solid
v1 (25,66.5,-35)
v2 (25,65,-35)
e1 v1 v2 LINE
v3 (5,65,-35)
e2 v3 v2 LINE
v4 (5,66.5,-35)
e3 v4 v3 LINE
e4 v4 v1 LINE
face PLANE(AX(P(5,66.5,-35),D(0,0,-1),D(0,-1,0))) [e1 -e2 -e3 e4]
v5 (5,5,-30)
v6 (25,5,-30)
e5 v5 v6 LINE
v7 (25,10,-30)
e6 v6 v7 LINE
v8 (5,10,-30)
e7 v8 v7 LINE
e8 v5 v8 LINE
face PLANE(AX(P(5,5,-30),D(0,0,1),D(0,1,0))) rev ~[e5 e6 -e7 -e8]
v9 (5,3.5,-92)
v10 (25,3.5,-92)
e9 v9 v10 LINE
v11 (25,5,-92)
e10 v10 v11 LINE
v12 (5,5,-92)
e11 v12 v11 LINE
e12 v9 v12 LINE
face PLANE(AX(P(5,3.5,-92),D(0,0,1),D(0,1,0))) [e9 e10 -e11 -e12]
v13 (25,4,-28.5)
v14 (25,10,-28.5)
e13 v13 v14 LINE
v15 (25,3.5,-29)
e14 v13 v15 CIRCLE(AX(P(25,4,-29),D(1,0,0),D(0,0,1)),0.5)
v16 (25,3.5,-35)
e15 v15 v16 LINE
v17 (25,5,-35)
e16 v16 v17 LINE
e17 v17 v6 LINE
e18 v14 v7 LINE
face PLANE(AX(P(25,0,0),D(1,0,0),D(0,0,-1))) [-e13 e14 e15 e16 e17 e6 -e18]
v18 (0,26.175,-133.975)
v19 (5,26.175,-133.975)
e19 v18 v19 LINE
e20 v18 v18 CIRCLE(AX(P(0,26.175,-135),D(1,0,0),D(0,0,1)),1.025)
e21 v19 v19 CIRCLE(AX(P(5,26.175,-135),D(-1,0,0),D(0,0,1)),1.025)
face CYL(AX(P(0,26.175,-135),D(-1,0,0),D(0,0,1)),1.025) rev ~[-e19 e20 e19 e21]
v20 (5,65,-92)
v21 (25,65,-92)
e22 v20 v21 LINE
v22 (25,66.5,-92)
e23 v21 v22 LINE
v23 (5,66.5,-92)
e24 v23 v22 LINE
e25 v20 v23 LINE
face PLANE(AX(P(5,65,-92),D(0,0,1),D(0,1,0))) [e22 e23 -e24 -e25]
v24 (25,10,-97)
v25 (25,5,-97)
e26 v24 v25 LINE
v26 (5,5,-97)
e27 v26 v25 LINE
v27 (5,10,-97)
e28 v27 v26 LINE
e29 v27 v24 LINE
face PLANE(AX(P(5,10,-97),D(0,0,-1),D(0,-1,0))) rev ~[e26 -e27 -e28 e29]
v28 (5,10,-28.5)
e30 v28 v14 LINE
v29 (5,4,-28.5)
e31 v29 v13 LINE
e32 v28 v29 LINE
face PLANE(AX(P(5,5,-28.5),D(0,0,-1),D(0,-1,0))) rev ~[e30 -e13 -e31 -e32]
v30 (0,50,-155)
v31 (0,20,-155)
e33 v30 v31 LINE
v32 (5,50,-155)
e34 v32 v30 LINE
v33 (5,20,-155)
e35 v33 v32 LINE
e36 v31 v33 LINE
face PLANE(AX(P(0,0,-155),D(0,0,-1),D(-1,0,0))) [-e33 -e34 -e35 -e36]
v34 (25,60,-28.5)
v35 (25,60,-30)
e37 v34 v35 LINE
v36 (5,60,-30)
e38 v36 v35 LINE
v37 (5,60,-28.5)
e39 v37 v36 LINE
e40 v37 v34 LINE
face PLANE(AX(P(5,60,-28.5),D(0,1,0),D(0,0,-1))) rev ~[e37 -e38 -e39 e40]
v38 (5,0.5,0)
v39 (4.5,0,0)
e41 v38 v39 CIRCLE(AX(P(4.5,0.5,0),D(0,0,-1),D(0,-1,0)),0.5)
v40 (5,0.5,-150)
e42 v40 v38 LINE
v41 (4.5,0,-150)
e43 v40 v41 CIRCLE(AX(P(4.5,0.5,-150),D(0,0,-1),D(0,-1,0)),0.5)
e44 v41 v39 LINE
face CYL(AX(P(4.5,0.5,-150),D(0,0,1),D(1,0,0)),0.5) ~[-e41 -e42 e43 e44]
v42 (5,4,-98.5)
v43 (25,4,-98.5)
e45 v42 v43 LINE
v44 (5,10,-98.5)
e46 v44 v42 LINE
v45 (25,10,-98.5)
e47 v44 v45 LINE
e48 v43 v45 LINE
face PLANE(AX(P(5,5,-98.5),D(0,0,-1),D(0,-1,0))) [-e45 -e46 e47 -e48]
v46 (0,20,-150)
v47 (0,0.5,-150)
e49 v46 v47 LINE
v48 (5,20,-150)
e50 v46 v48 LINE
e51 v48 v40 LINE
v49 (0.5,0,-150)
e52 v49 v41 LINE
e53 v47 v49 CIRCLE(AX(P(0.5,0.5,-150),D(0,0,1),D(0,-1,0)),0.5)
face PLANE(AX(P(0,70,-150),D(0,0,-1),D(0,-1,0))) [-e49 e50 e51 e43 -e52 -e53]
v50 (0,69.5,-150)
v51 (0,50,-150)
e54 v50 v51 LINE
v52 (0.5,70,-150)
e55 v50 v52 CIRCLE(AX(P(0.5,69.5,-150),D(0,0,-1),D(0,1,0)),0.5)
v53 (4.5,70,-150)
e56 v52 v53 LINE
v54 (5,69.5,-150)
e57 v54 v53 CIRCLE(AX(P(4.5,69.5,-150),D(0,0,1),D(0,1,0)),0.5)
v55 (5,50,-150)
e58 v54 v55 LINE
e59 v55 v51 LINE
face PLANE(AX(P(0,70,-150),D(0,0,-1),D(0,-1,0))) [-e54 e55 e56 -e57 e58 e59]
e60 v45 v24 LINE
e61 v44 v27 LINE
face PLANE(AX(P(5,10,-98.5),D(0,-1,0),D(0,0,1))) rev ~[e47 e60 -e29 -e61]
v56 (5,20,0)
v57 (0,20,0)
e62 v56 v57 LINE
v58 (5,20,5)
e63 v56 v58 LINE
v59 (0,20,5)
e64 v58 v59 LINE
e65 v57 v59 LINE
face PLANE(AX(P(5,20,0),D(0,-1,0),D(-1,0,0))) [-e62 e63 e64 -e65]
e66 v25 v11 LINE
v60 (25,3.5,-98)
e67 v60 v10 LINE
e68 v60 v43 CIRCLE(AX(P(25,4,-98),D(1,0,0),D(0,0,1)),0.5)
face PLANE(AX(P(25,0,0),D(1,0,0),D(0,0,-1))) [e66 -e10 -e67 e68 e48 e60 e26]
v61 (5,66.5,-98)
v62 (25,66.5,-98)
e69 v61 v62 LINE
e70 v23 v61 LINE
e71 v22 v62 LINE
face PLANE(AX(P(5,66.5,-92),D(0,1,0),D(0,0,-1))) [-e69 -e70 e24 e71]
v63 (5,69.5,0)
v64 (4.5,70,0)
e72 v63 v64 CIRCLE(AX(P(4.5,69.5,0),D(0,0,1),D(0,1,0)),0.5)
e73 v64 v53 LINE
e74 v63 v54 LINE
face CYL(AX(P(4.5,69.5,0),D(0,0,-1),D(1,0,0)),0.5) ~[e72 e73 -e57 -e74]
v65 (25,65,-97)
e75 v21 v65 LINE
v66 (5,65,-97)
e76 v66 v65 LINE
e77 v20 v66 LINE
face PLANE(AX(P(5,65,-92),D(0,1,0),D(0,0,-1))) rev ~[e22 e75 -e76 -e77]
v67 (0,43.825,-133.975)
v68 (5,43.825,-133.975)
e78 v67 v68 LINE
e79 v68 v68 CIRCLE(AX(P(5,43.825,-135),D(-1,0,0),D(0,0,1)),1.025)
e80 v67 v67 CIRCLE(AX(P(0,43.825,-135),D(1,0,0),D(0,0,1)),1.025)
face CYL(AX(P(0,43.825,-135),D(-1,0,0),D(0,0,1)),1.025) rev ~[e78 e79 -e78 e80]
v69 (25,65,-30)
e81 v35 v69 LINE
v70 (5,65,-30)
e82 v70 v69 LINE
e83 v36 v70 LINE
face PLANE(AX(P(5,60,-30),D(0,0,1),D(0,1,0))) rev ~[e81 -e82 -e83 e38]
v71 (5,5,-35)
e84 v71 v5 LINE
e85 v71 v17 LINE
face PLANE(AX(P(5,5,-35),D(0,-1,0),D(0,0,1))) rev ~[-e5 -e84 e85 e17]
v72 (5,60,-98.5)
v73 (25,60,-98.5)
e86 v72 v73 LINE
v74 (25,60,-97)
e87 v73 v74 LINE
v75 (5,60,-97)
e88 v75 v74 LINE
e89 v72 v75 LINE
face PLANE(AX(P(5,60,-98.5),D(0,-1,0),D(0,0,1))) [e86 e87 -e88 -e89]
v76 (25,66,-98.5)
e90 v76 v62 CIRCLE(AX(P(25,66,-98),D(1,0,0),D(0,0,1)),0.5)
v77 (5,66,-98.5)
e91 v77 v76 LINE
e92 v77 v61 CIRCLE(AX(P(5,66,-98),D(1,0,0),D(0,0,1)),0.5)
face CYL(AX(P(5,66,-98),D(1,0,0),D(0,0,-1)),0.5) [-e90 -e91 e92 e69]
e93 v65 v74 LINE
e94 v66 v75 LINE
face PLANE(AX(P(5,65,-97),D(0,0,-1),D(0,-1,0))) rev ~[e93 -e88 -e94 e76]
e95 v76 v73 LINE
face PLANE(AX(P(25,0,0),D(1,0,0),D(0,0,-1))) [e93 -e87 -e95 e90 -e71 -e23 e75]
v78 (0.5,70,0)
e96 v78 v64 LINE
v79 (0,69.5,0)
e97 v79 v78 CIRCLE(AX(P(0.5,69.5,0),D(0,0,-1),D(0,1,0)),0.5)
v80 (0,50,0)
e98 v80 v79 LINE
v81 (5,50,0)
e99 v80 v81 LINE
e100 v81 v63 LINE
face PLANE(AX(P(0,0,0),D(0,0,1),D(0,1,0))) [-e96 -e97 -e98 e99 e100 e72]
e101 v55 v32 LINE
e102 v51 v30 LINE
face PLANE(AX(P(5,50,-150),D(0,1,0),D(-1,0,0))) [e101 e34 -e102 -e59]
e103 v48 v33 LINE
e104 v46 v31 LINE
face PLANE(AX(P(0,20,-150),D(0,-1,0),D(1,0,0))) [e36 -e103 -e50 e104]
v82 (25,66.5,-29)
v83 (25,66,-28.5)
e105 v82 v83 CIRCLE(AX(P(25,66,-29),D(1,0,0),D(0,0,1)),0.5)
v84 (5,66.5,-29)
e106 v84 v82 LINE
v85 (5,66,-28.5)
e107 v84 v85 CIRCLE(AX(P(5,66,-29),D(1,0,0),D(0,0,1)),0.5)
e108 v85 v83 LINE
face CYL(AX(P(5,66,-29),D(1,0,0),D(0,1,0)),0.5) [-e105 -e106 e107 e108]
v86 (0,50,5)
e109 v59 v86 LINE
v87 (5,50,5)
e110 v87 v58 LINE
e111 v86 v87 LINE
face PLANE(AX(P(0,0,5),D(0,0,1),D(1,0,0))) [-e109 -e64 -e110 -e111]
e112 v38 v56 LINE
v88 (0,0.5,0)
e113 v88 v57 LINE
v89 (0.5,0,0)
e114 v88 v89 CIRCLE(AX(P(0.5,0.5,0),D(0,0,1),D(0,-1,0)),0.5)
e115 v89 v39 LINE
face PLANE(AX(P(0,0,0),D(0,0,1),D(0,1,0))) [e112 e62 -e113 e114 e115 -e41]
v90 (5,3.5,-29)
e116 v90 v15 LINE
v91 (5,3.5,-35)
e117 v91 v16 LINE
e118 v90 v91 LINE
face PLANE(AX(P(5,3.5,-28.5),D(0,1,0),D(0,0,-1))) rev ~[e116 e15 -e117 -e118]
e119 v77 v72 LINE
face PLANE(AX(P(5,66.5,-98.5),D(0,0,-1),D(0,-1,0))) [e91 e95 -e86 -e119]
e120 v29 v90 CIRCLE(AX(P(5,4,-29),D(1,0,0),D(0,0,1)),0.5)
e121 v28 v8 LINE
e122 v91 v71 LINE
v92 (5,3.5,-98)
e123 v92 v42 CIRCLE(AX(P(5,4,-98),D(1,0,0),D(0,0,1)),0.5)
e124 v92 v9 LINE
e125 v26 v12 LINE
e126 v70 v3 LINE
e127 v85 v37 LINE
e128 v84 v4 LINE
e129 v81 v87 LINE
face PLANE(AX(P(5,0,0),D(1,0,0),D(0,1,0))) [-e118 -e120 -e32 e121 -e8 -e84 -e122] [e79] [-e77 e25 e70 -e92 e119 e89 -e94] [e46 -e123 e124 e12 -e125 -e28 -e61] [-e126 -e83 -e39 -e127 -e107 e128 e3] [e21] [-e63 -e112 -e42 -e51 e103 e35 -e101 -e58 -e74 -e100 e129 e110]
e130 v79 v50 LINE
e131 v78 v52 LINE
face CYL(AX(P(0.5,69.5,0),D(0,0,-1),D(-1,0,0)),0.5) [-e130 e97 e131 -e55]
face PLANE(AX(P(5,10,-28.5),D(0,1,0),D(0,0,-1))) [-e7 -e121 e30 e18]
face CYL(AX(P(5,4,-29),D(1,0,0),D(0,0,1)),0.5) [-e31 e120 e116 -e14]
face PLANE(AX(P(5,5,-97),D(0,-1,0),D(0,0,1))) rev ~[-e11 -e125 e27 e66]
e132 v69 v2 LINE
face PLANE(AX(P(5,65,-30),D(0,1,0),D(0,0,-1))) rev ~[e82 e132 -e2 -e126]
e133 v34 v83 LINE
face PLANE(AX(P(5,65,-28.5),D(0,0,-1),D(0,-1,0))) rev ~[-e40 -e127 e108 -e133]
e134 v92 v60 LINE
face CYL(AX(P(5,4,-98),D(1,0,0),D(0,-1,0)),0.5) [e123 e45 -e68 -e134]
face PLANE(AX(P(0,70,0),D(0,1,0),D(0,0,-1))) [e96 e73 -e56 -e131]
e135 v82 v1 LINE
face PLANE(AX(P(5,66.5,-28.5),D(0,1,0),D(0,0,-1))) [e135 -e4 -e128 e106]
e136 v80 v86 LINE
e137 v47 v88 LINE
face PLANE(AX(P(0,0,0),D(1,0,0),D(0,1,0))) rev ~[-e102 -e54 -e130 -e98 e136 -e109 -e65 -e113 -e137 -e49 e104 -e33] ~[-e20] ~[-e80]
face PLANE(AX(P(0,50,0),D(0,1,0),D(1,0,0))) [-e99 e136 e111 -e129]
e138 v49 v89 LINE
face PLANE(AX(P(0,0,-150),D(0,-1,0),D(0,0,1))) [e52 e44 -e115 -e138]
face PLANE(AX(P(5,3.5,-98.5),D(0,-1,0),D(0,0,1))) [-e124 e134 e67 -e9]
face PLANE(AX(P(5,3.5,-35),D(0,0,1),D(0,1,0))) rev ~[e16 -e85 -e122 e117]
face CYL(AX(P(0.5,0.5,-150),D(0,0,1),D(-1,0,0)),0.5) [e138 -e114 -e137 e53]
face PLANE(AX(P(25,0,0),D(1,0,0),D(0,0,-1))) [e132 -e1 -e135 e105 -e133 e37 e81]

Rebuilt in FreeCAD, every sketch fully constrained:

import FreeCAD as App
import Part
import Sketcher


def edges_at(feature, points):
    """Names of the edges that pass closest to the given points."""
    edges = feature.Shape.Edges
    near = lambda p: min(range(len(edges)), key=lambda i: edges[i].distToShape(Part.Vertex(*p))[0])
    return sorted({f"Edge{near(p) + 1}" for p in points})

doc = App.newDocument("Part")
params = doc.addObject("Spreadsheet::Sheet", "Params")
for row, (alias, value) in enumerate([
    ("sketch1_width", "70 mm"),
    ("sketch1_height", "150 mm"),
    ("pad1_length", "5 mm"),
    ("sketch2_width", "5 mm"),
    ("sketch2_height", "30 mm"),
    ("pad2_length", "5 mm"),
    ("sketch3_width", "5 mm"),
    ("sketch3_height", "30 mm"),
    ("pad3_length", "5 mm"),
    ("sketch4_width", "5 mm"),
    ("sketch4_width2", "6.5 mm"),
    ("pad4_length", "20 mm"),
    ("fillet_radius", "0.5 mm"),
    ("sketch5_diameter", "2.05 mm"),
], start=1):
    params.set(f"A{row}", alias)
    params.set(f"B{row}", "=" + value)
    params.setAlias(f"B{row}", alias)

body = doc.addObject("PartDesign::Body", "Body")

# Sketch on YZ plane
sketch1 = doc.addObject("Sketcher::SketchObject", "Sketch")
body.addObject(sketch1)
sketch1.AttachmentSupport = (doc.YZ_Plane, [""])
sketch1.MapMode = "FlatFace"
sketch1.addGeometry([
    Part.LineSegment(App.Vector(70, 0, 0), App.Vector(0, 0, 0)),
    Part.LineSegment(App.Vector(0, 0, 0), App.Vector(0, -150, 0)),
    Part.LineSegment(App.Vector(0, -150, 0), App.Vector(70, -150, 0)),
    Part.LineSegment(App.Vector(70, -150, 0), App.Vector(70, 0, 0)),
], False)
sketch1.addConstraint([
    Sketcher.Constraint("Coincident", 0, 2, 1, 1),
    Sketcher.Constraint("Coincident", 1, 2, 2, 1),
    Sketcher.Constraint("Coincident", 2, 2, 3, 1),
    Sketcher.Constraint("Coincident", 3, 2, 0, 1),
    Sketcher.Constraint("Horizontal", 0),
    Sketcher.Constraint("Vertical", 1),
    Sketcher.Constraint("Horizontal", 2),
    Sketcher.Constraint("Vertical", 3),
    Sketcher.Constraint("Coincident", 0, 2, -1, 1),
    Sketcher.Constraint("DistanceX", 0, 2, 0, 1, 70.0),
    Sketcher.Constraint("DistanceY", 1, 2, 1, 1, 150.0),
])
sketch1.setExpression("Constraints[9]", "Params.sketch1_width")
sketch1.setExpression("Constraints[10]", "Params.sketch1_height")
pad1 = doc.addObject("PartDesign::Pad", "Pad")
body.addObject(pad1)
pad1.Profile = sketch1
pad1.setExpression("Length", "Params.pad1_length")

# Sketch on XY plane
sketch2 = doc.addObject("Sketcher::SketchObject", "Sketch001")
body.addObject(sketch2)
sketch2.AttachmentSupport = (doc.XY_Plane, [""])
sketch2.MapMode = "FlatFace"
sketch2.addGeometry([
    Part.LineSegment(App.Vector(0, 50, 0), App.Vector(0, 20, 0)),
    Part.LineSegment(App.Vector(0, 20, 0), App.Vector(5, 20, 0)),
    Part.LineSegment(App.Vector(5, 20, 0), App.Vector(5, 50, 0)),
    Part.LineSegment(App.Vector(5, 50, 0), App.Vector(0, 50, 0)),
], False)
sketch2.addConstraint([
    Sketcher.Constraint("Coincident", 0, 2, 1, 1),
    Sketcher.Constraint("Coincident", 1, 2, 2, 1),
    Sketcher.Constraint("Coincident", 2, 2, 3, 1),
    Sketcher.Constraint("Coincident", 3, 2, 0, 1),
    Sketcher.Constraint("Vertical", 0),
    Sketcher.Constraint("Horizontal", 1),
    Sketcher.Constraint("Vertical", 2),
    Sketcher.Constraint("Horizontal", 3),
    Sketcher.Constraint("PointOnObject", 0, 2, -2),
    Sketcher.Constraint("DistanceX", 1, 1, 1, 2, 5.0),
    Sketcher.Constraint("DistanceY", 0, 2, 0, 1, 30.0),
    Sketcher.Constraint("DistanceY", -1, 1, 0, 2, 20.0),
])
sketch2.setExpression("Constraints[9]", "Params.sketch2_width")
sketch2.setExpression("Constraints[10]", "Params.sketch2_height")
pad2 = doc.addObject("PartDesign::Pad", "Pad001")
body.addObject(pad2)
pad2.Profile = sketch2
pad2.setExpression("Length", "Params.pad2_length")

# Sketch on XY plane
sketch3 = doc.addObject("Sketcher::SketchObject", "Sketch002")
body.addObject(sketch3)
sketch3.AttachmentSupport = (doc.XY_Plane, [""])
sketch3.MapMode = "FlatFace"
sketch3.AttachmentOffset = App.Placement(App.Vector(0, 0, -150), App.Rotation())
sketch3.addGeometry([
    Part.LineSegment(App.Vector(5, 20, 0), App.Vector(0, 20, 0)),
    Part.LineSegment(App.Vector(0, 20, 0), App.Vector(0, 50, 0)),
    Part.LineSegment(App.Vector(0, 50, 0), App.Vector(5, 50, 0)),
    Part.LineSegment(App.Vector(5, 50, 0), App.Vector(5, 20, 0)),
], False)
sketch3.addConstraint([
    Sketcher.Constraint("Coincident", 0, 2, 1, 1),
    Sketcher.Constraint("Coincident", 1, 2, 2, 1),
    Sketcher.Constraint("Coincident", 2, 2, 3, 1),
    Sketcher.Constraint("Coincident", 3, 2, 0, 1),
    Sketcher.Constraint("Horizontal", 0),
    Sketcher.Constraint("Vertical", 1),
    Sketcher.Constraint("Horizontal", 2),
    Sketcher.Constraint("Vertical", 3),
    Sketcher.Constraint("PointOnObject", 0, 2, -2),
    Sketcher.Constraint("DistanceX", 0, 2, 0, 1, 5.0),
    Sketcher.Constraint("DistanceY", 1, 1, 1, 2, 30.0),
    Sketcher.Constraint("DistanceY", -1, 1, 0, 2, 20.0),
])
sketch3.setExpression("Constraints[9]", "Params.sketch3_width")
sketch3.setExpression("Constraints[10]", "Params.sketch3_height")
pad3 = doc.addObject("PartDesign::Pad", "Pad002")
body.addObject(pad3)
pad3.Profile = sketch3
pad3.setExpression("Length", "Params.pad3_length")
pad3.Reversed = True

# Sketch on YZ plane
sketch4 = doc.addObject("Sketcher::SketchObject", "Sketch003")
body.addObject(sketch4)
sketch4.AttachmentSupport = (doc.YZ_Plane, [""])
sketch4.MapMode = "FlatFace"
sketch4.AttachmentOffset = App.Placement(App.Vector(0, 0, 5), App.Rotation())
sketch4.addGeometry([
    Part.LineSegment(App.Vector(5, -35, 0), App.Vector(5, -30, 0)),  # 0
    Part.LineSegment(App.Vector(5, -30, 0), App.Vector(10, -30, 0)),  # 1
    Part.LineSegment(App.Vector(10, -30, 0), App.Vector(10, -28.5, 0)),  # 2
    Part.LineSegment(App.Vector(10, -28.5, 0), App.Vector(3.5, -28.5, 0)),  # 3
    Part.LineSegment(App.Vector(3.5, -28.5, 0), App.Vector(3.5, -35, 0)),  # 4
    Part.LineSegment(App.Vector(3.5, -35, 0), App.Vector(5, -35, 0)),  # 5
    Part.LineSegment(App.Vector(60, -28.5, 0), App.Vector(60, -30, 0)),  # 6
    Part.LineSegment(App.Vector(60, -30, 0), App.Vector(65, -30, 0)),  # 7
    Part.LineSegment(App.Vector(65, -30, 0), App.Vector(65, -35, 0)),  # 8
    Part.LineSegment(App.Vector(65, -35, 0), App.Vector(66.5, -35, 0)),  # 9
    Part.LineSegment(App.Vector(66.5, -35, 0), App.Vector(66.5, -28.5, 0)),  # 10
    Part.LineSegment(App.Vector(66.5, -28.5, 0), App.Vector(60, -28.5, 0)),  # 11
    Part.LineSegment(App.Vector(5, -97, 0), App.Vector(5, -92, 0)),  # 12
    Part.LineSegment(App.Vector(5, -92, 0), App.Vector(3.5, -92, 0)),  # 13
    Part.LineSegment(App.Vector(3.5, -92, 0), App.Vector(3.5, -98.5, 0)),  # 14
    Part.LineSegment(App.Vector(3.5, -98.5, 0), App.Vector(10, -98.5, 0)),  # 15
    Part.LineSegment(App.Vector(10, -98.5, 0), App.Vector(10, -97, 0)),  # 16
    Part.LineSegment(App.Vector(10, -97, 0), App.Vector(5, -97, 0)),  # 17
    Part.LineSegment(App.Vector(66.5, -92, 0), App.Vector(65, -92, 0)),  # 18
    Part.LineSegment(App.Vector(65, -92, 0), App.Vector(65, -97, 0)),  # 19
    Part.LineSegment(App.Vector(65, -97, 0), App.Vector(60, -97, 0)),  # 20
    Part.LineSegment(App.Vector(60, -97, 0), App.Vector(60, -98.5, 0)),  # 21
    Part.LineSegment(App.Vector(60, -98.5, 0), App.Vector(66.5, -98.5, 0)),  # 22
    Part.LineSegment(App.Vector(66.5, -98.5, 0), App.Vector(66.5, -92, 0)),  # 23
], False)
sketch4.addConstraint([
    Sketcher.Constraint("Coincident", 0, 2, 1, 1),
    Sketcher.Constraint("Coincident", 1, 2, 2, 1),
    Sketcher.Constraint("Coincident", 2, 2, 3, 1),
    Sketcher.Constraint("Coincident", 3, 2, 4, 1),
    Sketcher.Constraint("Coincident", 4, 2, 5, 1),
    Sketcher.Constraint("Coincident", 5, 2, 0, 1),
    Sketcher.Constraint("Coincident", 6, 2, 7, 1),
    Sketcher.Constraint("Coincident", 7, 2, 8, 1),
    Sketcher.Constraint("Coincident", 8, 2, 9, 1),
    Sketcher.Constraint("Coincident", 9, 2, 10, 1),
    Sketcher.Constraint("Coincident", 10, 2, 11, 1),
    Sketcher.Constraint("Coincident", 11, 2, 6, 1),
    Sketcher.Constraint("Coincident", 12, 2, 13, 1),
    Sketcher.Constraint("Coincident", 13, 2, 14, 1),
    Sketcher.Constraint("Coincident", 14, 2, 15, 1),
    Sketcher.Constraint("Coincident", 15, 2, 16, 1),
    Sketcher.Constraint("Coincident", 16, 2, 17, 1),
    Sketcher.Constraint("Coincident", 17, 2, 12, 1),
    Sketcher.Constraint("Coincident", 18, 2, 19, 1),
    Sketcher.Constraint("Coincident", 19, 2, 20, 1),
    Sketcher.Constraint("Coincident", 20, 2, 21, 1),
    Sketcher.Constraint("Coincident", 21, 2, 22, 1),
    Sketcher.Constraint("Coincident", 22, 2, 23, 1),
    Sketcher.Constraint("Coincident", 23, 2, 18, 1),
    Sketcher.Constraint("Vertical", 0),
    Sketcher.Constraint("Horizontal", 1),
    Sketcher.Constraint("Vertical", 2),
    Sketcher.Constraint("Horizontal", 3),
    Sketcher.Constraint("Vertical", 4),
    Sketcher.Constraint("Horizontal", 5),
    Sketcher.Constraint("Vertical", 6),
    Sketcher.Constraint("Horizontal", 7),
    Sketcher.Constraint("Vertical", 8),
    Sketcher.Constraint("Horizontal", 9),
    Sketcher.Constraint("Vertical", 10),
    Sketcher.Constraint("Horizontal", 11),
    Sketcher.Constraint("Vertical", 12),
    Sketcher.Constraint("Horizontal", 13),
    Sketcher.Constraint("Vertical", 14),
    Sketcher.Constraint("Horizontal", 15),
    Sketcher.Constraint("Vertical", 16),
    Sketcher.Constraint("Horizontal", 17),
    Sketcher.Constraint("Horizontal", 18),
    Sketcher.Constraint("Vertical", 19),
    Sketcher.Constraint("Horizontal", 20),
    Sketcher.Constraint("Vertical", 21),
    Sketcher.Constraint("Horizontal", 22),
    Sketcher.Constraint("Vertical", 23),
    Sketcher.Constraint("Horizontal", 1, 2, 6, 2),
    Sketcher.Constraint("Horizontal", 5, 2, 8, 2),
    Sketcher.Constraint("Horizontal", 3, 2, 10, 2),
    Sketcher.Constraint("Horizontal", 13, 2, 18, 2),
    Sketcher.Constraint("Horizontal", 17, 2, 19, 2),
    Sketcher.Constraint("Horizontal", 15, 2, 21, 2),
    Sketcher.Constraint("Vertical", 5, 2, 12, 2),
    Sketcher.Constraint("Vertical", 4, 2, 13, 2),
    Sketcher.Constraint("Vertical", 2, 2, 15, 2),
    Sketcher.Constraint("Vertical", 8, 2, 18, 2),
    Sketcher.Constraint("Vertical", 11, 2, 20, 2),
    Sketcher.Constraint("Vertical", 10, 2, 22, 2),
    Sketcher.Constraint("Equal", 1, 7),
    Sketcher.Constraint("Equal", 5, 9),
    Sketcher.Constraint("Equal", 20, 0),
    Sketcher.Constraint("Equal", 18, 2),
    Sketcher.Constraint("Equal", 8, 12),
    Sketcher.Constraint("Equal", 10, 14),
    Sketcher.Constraint("DistanceX", 1, 1, 1, 2, 5.0),
    Sketcher.Constraint("DistanceX", 3, 2, 3, 1, 6.5),
    Sketcher.Constraint("DistanceX", -1, 1, 0, 2, 5.0),
    Sketcher.Constraint("DistanceY", 0, 2, -1, 1, 30.0),
    Sketcher.Constraint("DistanceX", -1, 1, 6, 2, 60.0),
    Sketcher.Constraint("DistanceY", 12, 2, -1, 1, 92.0),
])
sketch4.setExpression("Constraints[66]", "Params.sketch4_width")
sketch4.setExpression("Constraints[67]", "Params.sketch4_width2")
pad4 = doc.addObject("PartDesign::Pad", "Pad003")
body.addObject(pad4)
pad4.Profile = sketch4
pad4.setExpression("Length", "Params.pad4_length")
doc.recompute()

fillet = doc.addObject("PartDesign::Fillet", "Fillet")
body.addObject(fillet)
fillet.Base = (pad4, edges_at(pad4, [
    (5, 70, -75),
    (0, 70, -75),
    (5, 0, -75),
    (0, 0, -75),
    (15, 3.5, -28.5),
    (15, 66.5, -28.5),
    (15, 66.5, -98.5),
    (15, 3.5, -98.5),
]))
fillet.setExpression("Radius", "Params.fillet_radius")

# Sketch on YZ plane
sketch5 = doc.addObject("Sketcher::SketchObject", "Sketch004")
body.addObject(sketch5)
sketch5.AttachmentSupport = (doc.YZ_Plane, [""])
sketch5.MapMode = "FlatFace"
sketch5.addGeometry([
    Part.Circle(App.Vector(43.825, -135, 0), App.Vector(0, 0, 1), 1.025),
    Part.Circle(App.Vector(26.175, -135, 0), App.Vector(0, 0, 1), 1.025),
], False)
sketch5.addConstraint([
    Sketcher.Constraint("Equal", 0, 1),
    Sketcher.Constraint("Horizontal", 0, 3, 1, 3),
    Sketcher.Constraint("Diameter", 0, 2.05),
    Sketcher.Constraint("DistanceX", 1, 3, 0, 3, 17.65),
    Sketcher.Constraint("DistanceY", 0, 3, -1, 1, 135.0),
    Sketcher.Constraint("DistanceX", -1, 1, 0, 3, 43.825),
])
sketch5.setExpression("Constraints[2]", "Params.sketch5_diameter")
pocket1 = doc.addObject("PartDesign::Pocket", "Pocket")
body.addObject(pocket1)
pocket1.Profile = sketch5
pocket1.Type = "ThroughAll"
pocket1.Reversed = True

doc.recompute()
